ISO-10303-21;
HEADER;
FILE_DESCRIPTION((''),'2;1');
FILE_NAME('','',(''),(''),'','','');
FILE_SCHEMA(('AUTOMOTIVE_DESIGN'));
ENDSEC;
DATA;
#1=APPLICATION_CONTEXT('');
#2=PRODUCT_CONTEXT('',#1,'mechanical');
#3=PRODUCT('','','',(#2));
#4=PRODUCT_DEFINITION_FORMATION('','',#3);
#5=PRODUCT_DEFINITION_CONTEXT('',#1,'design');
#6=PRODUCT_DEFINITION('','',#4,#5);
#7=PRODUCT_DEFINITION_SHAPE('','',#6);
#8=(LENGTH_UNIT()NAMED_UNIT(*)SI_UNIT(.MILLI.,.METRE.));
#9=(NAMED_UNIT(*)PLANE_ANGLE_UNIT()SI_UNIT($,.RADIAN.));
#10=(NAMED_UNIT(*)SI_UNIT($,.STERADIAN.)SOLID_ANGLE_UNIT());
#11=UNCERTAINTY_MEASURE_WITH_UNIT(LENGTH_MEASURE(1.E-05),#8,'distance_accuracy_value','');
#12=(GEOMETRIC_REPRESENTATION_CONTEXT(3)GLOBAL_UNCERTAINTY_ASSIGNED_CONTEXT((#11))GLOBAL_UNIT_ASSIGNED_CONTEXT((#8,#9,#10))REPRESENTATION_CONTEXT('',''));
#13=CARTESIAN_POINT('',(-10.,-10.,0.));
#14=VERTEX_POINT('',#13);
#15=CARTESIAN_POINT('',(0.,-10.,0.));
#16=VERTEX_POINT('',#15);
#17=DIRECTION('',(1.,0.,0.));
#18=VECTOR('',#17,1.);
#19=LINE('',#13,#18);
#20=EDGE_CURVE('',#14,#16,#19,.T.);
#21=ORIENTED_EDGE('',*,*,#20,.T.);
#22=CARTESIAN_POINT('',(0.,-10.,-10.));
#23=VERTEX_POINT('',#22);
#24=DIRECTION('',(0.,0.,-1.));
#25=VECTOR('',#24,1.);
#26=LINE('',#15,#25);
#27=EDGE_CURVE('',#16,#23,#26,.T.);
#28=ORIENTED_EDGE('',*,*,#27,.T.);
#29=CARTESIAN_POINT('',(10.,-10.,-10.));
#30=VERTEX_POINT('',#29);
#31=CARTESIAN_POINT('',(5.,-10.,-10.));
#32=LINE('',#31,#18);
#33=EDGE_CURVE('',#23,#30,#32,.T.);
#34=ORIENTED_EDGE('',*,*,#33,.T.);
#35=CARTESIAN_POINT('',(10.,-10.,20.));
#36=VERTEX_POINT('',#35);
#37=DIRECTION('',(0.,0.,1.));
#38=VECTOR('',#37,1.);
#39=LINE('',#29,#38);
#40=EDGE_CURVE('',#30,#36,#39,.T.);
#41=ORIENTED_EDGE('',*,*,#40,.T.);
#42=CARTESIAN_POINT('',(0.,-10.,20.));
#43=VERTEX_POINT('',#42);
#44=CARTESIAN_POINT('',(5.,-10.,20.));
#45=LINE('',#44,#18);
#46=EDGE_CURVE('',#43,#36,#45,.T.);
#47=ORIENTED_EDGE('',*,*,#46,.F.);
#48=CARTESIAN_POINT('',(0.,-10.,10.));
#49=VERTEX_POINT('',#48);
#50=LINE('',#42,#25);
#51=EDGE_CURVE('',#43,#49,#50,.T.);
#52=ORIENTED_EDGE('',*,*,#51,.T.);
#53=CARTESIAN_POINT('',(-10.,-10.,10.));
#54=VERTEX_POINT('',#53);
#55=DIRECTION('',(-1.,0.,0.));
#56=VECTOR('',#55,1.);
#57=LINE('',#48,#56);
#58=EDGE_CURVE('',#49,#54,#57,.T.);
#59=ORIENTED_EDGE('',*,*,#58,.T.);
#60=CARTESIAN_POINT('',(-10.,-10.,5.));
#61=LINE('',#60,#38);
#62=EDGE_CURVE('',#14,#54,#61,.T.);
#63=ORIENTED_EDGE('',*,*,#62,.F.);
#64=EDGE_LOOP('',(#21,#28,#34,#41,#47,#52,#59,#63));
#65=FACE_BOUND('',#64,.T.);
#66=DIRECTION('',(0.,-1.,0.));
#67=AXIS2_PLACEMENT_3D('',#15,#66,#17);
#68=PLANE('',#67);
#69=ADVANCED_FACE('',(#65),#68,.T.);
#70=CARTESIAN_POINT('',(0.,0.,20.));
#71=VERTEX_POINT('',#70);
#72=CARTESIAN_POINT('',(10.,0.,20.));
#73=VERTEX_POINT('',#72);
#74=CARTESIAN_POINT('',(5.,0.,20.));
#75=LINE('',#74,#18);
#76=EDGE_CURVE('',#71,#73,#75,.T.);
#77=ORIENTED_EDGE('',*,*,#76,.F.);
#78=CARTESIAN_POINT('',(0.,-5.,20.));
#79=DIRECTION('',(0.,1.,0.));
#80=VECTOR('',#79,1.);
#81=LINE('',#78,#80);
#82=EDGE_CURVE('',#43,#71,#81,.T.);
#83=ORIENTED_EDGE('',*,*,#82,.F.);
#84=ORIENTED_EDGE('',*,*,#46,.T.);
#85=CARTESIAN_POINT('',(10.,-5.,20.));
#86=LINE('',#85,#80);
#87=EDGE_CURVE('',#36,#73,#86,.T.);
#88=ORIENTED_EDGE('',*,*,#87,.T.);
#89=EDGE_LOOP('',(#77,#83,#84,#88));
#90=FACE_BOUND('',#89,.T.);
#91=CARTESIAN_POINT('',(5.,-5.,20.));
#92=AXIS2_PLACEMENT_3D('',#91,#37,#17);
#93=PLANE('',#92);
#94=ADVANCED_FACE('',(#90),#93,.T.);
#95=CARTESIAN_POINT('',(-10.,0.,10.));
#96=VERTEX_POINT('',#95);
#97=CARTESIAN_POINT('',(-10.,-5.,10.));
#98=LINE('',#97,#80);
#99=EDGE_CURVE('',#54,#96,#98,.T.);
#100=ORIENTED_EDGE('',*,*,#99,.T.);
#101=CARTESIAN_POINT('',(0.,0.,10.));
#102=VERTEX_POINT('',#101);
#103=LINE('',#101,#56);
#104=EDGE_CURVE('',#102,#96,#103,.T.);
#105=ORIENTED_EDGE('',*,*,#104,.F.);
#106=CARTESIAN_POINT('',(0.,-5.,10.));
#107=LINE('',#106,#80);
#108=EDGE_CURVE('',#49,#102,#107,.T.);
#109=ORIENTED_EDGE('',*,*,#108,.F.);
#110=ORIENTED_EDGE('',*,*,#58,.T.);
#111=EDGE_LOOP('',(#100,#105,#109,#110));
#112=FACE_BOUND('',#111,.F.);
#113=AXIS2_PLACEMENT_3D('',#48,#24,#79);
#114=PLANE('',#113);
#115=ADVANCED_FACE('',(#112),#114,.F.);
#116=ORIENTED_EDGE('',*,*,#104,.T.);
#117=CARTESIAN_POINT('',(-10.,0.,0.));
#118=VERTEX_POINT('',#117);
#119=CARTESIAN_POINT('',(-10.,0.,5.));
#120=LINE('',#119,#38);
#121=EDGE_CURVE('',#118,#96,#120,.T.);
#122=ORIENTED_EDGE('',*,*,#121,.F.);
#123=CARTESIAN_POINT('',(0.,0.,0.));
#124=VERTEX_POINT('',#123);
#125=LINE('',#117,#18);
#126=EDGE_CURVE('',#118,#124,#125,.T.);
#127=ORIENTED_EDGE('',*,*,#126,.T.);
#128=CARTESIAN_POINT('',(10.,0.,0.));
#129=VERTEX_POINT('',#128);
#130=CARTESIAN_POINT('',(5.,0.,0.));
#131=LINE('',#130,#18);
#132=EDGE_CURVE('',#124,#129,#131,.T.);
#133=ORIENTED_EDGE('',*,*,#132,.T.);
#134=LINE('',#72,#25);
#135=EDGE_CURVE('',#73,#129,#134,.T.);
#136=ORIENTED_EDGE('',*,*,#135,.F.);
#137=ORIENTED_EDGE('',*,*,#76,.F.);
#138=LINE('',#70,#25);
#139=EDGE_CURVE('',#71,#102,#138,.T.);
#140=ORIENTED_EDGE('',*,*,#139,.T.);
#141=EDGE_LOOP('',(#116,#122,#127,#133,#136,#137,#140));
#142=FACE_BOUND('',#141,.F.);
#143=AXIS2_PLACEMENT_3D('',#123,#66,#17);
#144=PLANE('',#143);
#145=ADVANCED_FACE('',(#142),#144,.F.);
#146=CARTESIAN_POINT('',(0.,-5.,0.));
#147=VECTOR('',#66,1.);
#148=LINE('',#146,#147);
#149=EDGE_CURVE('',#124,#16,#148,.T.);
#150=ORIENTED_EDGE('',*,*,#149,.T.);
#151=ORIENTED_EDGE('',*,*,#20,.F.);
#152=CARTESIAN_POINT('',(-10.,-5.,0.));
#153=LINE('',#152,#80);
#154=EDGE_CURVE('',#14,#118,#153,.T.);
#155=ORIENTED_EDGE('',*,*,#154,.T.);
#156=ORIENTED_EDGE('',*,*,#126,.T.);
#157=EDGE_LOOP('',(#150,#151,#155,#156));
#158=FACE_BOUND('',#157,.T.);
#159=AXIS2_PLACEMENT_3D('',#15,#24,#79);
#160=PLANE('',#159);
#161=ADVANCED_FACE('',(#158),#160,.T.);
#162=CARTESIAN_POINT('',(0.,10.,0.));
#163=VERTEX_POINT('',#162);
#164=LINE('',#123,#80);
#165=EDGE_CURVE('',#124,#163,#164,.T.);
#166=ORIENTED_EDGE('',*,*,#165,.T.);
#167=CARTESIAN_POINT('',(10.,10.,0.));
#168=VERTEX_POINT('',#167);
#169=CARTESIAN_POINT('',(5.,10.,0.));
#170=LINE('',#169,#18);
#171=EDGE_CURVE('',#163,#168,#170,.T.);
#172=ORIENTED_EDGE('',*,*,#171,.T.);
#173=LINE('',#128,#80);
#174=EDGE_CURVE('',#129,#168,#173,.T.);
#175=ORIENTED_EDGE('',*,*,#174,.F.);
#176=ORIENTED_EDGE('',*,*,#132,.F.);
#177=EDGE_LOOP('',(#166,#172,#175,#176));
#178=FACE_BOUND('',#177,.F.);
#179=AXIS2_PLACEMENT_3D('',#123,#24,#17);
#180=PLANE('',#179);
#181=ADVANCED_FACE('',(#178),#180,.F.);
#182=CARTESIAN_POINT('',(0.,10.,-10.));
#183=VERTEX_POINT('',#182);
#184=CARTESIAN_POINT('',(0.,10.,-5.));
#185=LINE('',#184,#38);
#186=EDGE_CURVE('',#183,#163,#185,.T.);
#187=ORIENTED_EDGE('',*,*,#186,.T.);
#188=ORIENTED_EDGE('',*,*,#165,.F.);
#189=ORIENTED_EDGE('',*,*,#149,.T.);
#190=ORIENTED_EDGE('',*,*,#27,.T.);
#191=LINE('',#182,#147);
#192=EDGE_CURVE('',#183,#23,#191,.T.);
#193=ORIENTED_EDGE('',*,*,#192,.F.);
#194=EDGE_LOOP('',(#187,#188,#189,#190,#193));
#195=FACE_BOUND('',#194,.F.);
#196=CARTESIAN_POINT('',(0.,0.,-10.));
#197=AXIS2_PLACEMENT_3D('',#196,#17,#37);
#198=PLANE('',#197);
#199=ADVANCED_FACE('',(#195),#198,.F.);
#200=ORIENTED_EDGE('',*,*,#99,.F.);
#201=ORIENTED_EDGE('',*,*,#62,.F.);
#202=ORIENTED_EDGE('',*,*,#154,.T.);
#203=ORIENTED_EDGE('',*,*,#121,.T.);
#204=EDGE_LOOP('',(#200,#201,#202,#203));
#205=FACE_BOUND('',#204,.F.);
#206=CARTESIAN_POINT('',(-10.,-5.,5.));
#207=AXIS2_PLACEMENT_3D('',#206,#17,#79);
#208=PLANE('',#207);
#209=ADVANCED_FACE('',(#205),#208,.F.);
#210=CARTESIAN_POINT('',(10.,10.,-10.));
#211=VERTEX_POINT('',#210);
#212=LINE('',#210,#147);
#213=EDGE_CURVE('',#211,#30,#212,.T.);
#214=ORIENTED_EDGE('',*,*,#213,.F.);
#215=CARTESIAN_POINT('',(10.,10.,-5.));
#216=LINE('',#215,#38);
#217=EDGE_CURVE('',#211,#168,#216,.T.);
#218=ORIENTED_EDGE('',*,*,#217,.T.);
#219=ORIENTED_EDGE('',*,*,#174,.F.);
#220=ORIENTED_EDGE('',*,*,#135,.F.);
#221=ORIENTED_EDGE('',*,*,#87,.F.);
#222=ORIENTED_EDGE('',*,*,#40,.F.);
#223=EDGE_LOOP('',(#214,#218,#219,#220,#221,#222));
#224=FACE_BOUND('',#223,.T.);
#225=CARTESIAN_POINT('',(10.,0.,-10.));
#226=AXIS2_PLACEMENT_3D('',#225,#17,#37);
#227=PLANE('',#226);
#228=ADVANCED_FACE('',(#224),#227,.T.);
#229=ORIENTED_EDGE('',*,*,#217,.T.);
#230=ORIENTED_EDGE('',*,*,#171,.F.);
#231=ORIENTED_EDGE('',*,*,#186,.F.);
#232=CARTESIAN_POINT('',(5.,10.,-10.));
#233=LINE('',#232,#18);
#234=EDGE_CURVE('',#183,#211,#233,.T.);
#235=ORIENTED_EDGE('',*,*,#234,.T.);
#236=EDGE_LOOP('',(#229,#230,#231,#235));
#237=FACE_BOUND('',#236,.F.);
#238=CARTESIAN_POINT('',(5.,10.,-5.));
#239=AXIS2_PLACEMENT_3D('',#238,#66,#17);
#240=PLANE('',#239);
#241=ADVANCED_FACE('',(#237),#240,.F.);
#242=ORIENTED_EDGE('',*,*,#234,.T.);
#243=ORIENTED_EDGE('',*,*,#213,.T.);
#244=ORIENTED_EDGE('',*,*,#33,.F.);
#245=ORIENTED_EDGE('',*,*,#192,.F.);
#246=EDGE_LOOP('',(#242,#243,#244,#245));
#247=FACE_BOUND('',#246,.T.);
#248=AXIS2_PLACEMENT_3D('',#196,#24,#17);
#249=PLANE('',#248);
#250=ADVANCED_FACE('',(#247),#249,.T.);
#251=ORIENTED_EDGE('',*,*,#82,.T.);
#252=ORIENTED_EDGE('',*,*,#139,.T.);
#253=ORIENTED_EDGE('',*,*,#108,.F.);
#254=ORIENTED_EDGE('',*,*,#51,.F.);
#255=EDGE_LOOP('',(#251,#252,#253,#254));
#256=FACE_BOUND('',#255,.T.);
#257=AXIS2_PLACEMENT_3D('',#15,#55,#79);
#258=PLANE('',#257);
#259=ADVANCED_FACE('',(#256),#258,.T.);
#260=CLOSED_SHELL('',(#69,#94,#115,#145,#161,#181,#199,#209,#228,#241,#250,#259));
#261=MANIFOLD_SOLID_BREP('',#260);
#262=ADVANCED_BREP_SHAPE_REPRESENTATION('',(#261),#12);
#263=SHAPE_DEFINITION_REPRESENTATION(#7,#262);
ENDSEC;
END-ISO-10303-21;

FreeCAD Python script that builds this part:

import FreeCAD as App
import Part
import Sketcher
from FreeCAD import Vector

doc = App.newDocument("Part")
body = doc.addObject("PartDesign::Body", "Body")

sketch1 = body.newObject("Sketcher::SketchObject", "Sketch")
sketch1.AttachmentSupport = (doc.getObject("XY_Plane"), [""])
sketch1.MapMode = "FlatFace"
sketch1.addGeometry([
    Part.LineSegment(Vector(0, 0, 0), Vector(0, -10, 0)),
    Part.LineSegment(Vector(0, -10, 0), Vector(10, -10, 0)),
    Part.LineSegment(Vector(10, -10, 0), Vector(10, 0, 0)),
    Part.LineSegment(Vector(10, 0, 0), Vector(0, 0, 0)),
], False)
sketch1.addConstraint([
    Sketcher.Constraint("Coincident", 0, 2, 1, 1),
    Sketcher.Constraint("Coincident", 1, 2, 2, 1),
    Sketcher.Constraint("Coincident", 2, 2, 3, 1),
    Sketcher.Constraint("Coincident", 3, 2, 0, 1),
    Sketcher.Constraint("Vertical", 0),
    Sketcher.Constraint("Horizontal", 1),
    Sketcher.Constraint("Vertical", 2),
    Sketcher.Constraint("Horizontal", 3),
    Sketcher.Constraint("Coincident", 3, 2, -1, 1),
    Sketcher.Constraint("Equal", 3, 0),
    Sketcher.Constraint("DistanceX", 1, 1, 1, 2, 10.0),
])
pad1 = body.newObject("PartDesign::Pad", "Pad")
pad1.Profile = sketch1
pad1.Length = 20

sketch2 = body.newObject("Sketcher::SketchObject", "Sketch001")
sketch2.AttachmentSupport = (doc.getObject("YZ_Plane"), [""])
sketch2.MapMode = "FlatFace"
sketch2.addGeometry([
    Part.LineSegment(Vector(-10, 10, 0), Vector(-10, 0, 0)),
    Part.LineSegment(Vector(-10, 0, 0), Vector(0, 0, 0)),
    Part.LineSegment(Vector(0, 0, 0), Vector(0, 10, 0)),
    Part.LineSegment(Vector(0, 10, 0), Vector(-10, 10, 0)),
], False)
sketch2.addConstraint([
    Sketcher.Constraint("Coincident", 0, 2, 1, 1),
    Sketcher.Constraint("Coincident", 1, 2, 2, 1),
    Sketcher.Constraint("Coincident", 2, 2, 3, 1),
    Sketcher.Constraint("Coincident", 3, 2, 0, 1),
    Sketcher.Constraint("Vertical", 0),
    Sketcher.Constraint("Horizontal", 1),
    Sketcher.Constraint("Vertical", 2),
    Sketcher.Constraint("Horizontal", 3),
    Sketcher.Constraint("Coincident", 1, 2, -1, 1),
    Sketcher.Constraint("Equal", 3, 0),
    Sketcher.Constraint("DistanceX", 1, 1, 1, 2, 10.0),
])
pad2 = body.newObject("PartDesign::Pad", "Pad001")
pad2.Profile = sketch2
pad2.Length = 10

sketch3 = body.newObject("Sketcher::SketchObject", "Sketch002")
sketch3.AttachmentSupport = (doc.getObject("YZ_Plane"), [""])
sketch3.MapMode = "FlatFace"
sketch3.addGeometry([
    Part.LineSegment(Vector(-10, 10, 0), Vector(-10, 0, 0)),
    Part.LineSegment(Vector(-10, 0, 0), Vector(0, 0, 0)),
    Part.LineSegment(Vector(0, 0, 0), Vector(0, 10, 0)),
    Part.LineSegment(Vector(0, 10, 0), Vector(-10, 10, 0)),
], False)
sketch3.addConstraint([
    Sketcher.Constraint("Coincident", 0, 2, 1, 1),
    Sketcher.Constraint("Coincident", 1, 2, 2, 1),
    Sketcher.Constraint("Coincident", 2, 2, 3, 1),
    Sketcher.Constraint("Coincident", 3, 2, 0, 1),
    Sketcher.Constraint("Vertical", 0),
    Sketcher.Constraint("Horizontal", 1),
    Sketcher.Constraint("Vertical", 2),
    Sketcher.Constraint("Horizontal", 3),
    Sketcher.Constraint("Coincident", 1, 2, -1, 1),
    Sketcher.Constraint("Equal", 3, 0),
    Sketcher.Constraint("DistanceX", 1, 1, 1, 2, 10.0),
])
pad3 = body.newObject("PartDesign::Pad", "Pad002")
pad3.Profile = sketch3
pad3.Length = 10
pad3.Reversed = True

sketch4 = body.newObject("Sketcher::SketchObject", "Sketch003")
sketch4.AttachmentSupport = (doc.getObject("XY_Plane"), [""])
sketch4.MapMode = "FlatFace"
sketch4.addGeometry([
    Part.LineSegment(Vector(0, -10, 0), Vector(0, 0, 0)),
    Part.LineSegment(Vector(0, 0, 0), Vector(10, 0, 0)),
    Part.LineSegment(Vector(10, 0, 0), Vector(10, -10, 0)),
    Part.LineSegment(Vector(10, -10, 0), Vector(0, -10, 0)),
], False)
sketch4.addConstraint([
    Sketcher.Constraint("Coincident", 0, 2, 1, 1),
    Sketcher.Constraint("Coincident", 1, 2, 2, 1),
    Sketcher.Constraint("Coincident", 2, 2, 3, 1),
    Sketcher.Constraint("Coincident", 3, 2, 0, 1),
    Sketcher.Constraint("Vertical", 0),
    Sketcher.Constraint("Horizontal", 1),
    Sketcher.Constraint("Vertical", 2),
    Sketcher.Constraint("Horizontal", 3),
    Sketcher.Constraint("Coincident", 0, 2, -1, 1),
    Sketcher.Constraint("Equal", 3, 0),
    Sketcher.Constraint("DistanceX", 1, 1, 1, 2, 10.0),
])
pad4 = body.newObject("PartDesign::Pad", "Pad003")
pad4.Profile = sketch4
pad4.Length = 10
pad4.Reversed = True

sketch5 = body.newObject("Sketcher::SketchObject", "Sketch004")
sketch5.AttachmentSupport = (doc.getObject("XZ_Plane"), [""])
sketch5.MapMode = "FlatFace"
sketch5.addGeometry([
    Part.LineSegment(Vector(0, 0, 0), Vector(0, -10, 0)),
    Part.LineSegment(Vector(0, -10, 0), Vector(10, -10, 0)),
    Part.LineSegment(Vector(10, -10, 0), Vector(10, 0, 0)),
    Part.LineSegment(Vector(10, 0, 0), Vector(0, 0, 0)),
], False)
sketch5.addConstraint([
    Sketcher.Constraint("Coincident", 0, 2, 1, 1),
    Sketcher.Constraint("Coincident", 1, 2, 2, 1),
    Sketcher.Constraint("Coincident", 2, 2, 3, 1),
    Sketcher.Constraint("Coincident", 3, 2, 0, 1),
    Sketcher.Constraint("Vertical", 0),
    Sketcher.Constraint("Horizontal", 1),
    Sketcher.Constraint("Vertical", 2),
    Sketcher.Constraint("Horizontal", 3),
    Sketcher.Constraint("Coincident", 3, 2, -1, 1),
    Sketcher.Constraint("Equal", 3, 0),
    Sketcher.Constraint("DistanceX", 1, 1, 1, 2, 10.0),
])
pad5 = body.newObject("PartDesign::Pad", "Pad004")
pad5.Profile = sketch5
pad5.Length = 10
pad5.Reversed = True

doc.recompute()
